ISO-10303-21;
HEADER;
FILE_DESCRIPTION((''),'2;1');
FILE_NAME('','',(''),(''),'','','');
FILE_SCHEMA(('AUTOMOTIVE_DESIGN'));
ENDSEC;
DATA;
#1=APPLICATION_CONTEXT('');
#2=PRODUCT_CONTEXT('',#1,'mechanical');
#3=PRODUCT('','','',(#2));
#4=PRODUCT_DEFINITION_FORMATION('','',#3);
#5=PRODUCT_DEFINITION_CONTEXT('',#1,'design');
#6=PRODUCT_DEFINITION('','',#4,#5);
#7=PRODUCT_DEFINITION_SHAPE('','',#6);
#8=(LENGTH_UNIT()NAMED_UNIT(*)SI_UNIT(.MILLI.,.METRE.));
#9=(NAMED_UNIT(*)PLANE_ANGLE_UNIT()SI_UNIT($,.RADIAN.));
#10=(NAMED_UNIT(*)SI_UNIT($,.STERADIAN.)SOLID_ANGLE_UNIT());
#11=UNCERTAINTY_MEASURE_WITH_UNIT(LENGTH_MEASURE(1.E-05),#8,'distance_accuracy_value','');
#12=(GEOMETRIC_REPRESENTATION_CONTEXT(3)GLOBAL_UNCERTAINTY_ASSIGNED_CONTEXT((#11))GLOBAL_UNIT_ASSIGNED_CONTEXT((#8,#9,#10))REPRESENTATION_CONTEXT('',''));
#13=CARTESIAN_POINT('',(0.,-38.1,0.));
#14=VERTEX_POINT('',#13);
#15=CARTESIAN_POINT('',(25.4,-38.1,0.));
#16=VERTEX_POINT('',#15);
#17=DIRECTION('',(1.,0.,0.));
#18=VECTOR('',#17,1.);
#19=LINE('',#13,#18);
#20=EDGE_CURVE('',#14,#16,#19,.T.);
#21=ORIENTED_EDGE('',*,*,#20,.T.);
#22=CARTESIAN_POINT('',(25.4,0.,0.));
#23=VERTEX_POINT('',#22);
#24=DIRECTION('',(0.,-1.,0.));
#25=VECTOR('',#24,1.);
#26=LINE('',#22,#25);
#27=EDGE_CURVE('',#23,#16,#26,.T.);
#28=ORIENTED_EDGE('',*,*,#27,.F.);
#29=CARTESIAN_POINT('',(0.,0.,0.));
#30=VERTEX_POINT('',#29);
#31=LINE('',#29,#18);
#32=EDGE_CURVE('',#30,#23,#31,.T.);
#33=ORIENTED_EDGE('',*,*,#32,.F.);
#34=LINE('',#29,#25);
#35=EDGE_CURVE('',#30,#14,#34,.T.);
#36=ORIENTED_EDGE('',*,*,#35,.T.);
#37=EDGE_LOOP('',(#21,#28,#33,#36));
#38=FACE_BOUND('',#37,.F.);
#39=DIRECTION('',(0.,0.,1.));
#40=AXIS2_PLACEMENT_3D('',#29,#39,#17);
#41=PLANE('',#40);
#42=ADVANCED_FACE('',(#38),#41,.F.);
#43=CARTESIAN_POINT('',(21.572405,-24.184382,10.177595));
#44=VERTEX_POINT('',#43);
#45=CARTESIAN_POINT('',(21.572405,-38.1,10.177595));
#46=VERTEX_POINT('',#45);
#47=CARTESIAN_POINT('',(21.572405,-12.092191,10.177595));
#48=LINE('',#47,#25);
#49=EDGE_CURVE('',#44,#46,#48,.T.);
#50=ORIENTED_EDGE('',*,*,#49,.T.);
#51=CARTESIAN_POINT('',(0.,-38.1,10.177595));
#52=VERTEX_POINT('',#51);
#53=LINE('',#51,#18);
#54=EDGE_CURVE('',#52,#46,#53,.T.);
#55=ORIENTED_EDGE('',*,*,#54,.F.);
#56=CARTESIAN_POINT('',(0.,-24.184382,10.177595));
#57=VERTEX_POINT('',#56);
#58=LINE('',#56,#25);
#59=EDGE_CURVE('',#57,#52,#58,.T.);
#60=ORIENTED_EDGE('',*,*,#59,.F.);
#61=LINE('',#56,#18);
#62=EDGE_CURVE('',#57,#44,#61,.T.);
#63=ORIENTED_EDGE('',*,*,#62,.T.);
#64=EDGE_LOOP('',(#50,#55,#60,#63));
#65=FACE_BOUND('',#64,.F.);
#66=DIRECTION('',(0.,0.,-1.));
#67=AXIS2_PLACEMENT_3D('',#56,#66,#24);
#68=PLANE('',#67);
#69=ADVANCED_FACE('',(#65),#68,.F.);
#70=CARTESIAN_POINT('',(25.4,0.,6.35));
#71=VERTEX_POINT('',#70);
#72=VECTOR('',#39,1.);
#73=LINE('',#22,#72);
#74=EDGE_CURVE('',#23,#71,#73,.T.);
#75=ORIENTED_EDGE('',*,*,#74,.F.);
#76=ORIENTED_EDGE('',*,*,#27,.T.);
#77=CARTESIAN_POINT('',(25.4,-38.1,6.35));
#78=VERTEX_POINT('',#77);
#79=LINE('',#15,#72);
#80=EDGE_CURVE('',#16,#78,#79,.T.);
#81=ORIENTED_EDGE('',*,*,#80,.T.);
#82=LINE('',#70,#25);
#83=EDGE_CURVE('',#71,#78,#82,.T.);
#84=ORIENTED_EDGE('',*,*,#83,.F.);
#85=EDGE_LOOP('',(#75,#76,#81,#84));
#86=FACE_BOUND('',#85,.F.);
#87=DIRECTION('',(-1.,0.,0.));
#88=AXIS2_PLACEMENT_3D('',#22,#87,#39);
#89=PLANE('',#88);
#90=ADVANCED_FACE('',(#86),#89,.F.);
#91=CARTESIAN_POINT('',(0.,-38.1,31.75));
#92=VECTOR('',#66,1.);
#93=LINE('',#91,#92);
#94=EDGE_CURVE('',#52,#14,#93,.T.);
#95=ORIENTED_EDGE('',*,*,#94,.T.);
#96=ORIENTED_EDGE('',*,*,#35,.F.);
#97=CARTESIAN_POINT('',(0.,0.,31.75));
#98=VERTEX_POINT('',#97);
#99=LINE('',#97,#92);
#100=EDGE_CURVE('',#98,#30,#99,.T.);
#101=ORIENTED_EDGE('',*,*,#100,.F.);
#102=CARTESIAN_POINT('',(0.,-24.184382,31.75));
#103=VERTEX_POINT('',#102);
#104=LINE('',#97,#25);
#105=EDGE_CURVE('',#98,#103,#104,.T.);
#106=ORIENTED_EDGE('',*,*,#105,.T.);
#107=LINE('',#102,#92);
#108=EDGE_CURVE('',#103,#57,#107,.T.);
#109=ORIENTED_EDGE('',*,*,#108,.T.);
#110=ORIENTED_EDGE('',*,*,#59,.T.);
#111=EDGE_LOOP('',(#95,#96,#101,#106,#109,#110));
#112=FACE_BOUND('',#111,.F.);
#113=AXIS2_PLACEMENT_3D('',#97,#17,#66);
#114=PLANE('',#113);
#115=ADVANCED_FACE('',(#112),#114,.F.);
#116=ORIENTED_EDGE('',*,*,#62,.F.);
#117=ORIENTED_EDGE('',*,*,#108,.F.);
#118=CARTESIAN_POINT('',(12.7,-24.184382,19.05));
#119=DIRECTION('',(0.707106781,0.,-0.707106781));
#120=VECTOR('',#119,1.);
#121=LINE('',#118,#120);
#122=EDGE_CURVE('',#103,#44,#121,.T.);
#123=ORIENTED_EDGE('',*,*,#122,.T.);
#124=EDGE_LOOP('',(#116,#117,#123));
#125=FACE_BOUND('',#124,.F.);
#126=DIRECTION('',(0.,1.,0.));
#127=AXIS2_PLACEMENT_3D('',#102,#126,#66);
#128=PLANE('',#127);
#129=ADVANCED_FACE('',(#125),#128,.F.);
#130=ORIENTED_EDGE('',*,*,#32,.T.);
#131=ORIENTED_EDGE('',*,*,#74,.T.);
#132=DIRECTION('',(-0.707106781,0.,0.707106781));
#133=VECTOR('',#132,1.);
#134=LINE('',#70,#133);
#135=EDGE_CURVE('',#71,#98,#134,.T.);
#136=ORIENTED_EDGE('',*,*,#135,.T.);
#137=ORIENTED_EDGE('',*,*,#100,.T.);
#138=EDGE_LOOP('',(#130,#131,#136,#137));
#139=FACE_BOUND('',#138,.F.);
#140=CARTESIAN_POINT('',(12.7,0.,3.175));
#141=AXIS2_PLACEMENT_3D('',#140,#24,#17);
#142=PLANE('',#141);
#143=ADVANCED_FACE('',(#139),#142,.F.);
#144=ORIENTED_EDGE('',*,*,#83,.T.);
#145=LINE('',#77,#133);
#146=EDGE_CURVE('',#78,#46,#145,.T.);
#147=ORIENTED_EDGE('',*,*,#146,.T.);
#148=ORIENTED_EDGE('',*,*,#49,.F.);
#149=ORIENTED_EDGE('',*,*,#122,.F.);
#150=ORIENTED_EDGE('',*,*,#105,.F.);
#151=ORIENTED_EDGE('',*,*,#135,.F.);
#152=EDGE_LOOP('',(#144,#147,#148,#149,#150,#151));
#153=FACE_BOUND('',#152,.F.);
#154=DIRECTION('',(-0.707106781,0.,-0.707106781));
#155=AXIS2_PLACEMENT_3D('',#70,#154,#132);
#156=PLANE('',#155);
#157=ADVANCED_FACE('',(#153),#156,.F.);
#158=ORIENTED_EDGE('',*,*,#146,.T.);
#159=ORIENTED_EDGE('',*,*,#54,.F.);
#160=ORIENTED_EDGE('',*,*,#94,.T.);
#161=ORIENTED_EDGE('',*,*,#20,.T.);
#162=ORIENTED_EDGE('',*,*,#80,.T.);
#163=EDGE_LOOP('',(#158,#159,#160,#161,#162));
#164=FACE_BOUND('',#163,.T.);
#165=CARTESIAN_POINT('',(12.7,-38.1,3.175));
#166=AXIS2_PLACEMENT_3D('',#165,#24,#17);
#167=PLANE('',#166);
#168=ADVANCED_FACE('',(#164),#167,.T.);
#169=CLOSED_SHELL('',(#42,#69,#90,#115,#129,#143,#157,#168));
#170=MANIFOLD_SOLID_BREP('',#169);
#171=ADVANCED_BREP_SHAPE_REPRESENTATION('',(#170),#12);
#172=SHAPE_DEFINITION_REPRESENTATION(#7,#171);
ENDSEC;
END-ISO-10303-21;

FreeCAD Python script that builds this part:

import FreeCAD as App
import Part
import Sketcher
from FreeCAD import Vector
Q = App.Units.Quantity


def add_polygon(sketch, points):
    """Adds a closed chain of lines whose ends are joined by coincident constraints."""
    first, n = sketch.GeometryCount, len(points)
    for a, b in zip(points, points[1:] + points[:1]):
        sketch.addGeometry(Part.LineSegment(App.Vector(*a, 0), App.Vector(*b, 0)), False)
    for i in range(n):
        sketch.addConstraint(Sketcher.Constraint("Coincident", first + i, 2, first + (i + 1) % n, 1))

doc = App.newDocument("Part")
body = doc.addObject("PartDesign::Body", "Body")

# Sketch on XZ plane
sketch1 = doc.addObject("Sketcher::SketchObject", "Sketch")
body.addObject(sketch1)
sketch1.AttachmentSupport = (doc.XZ_Plane, [""])
sketch1.MapMode = "FlatFace"
add_polygon(sketch1, [(0, 0), (25, 0), (25, 6), (0, 32)])  # lines 0-3
sketch1.addConstraint([
    Sketcher.Constraint("Horizontal", 0),
    Sketcher.Constraint("Vertical", 1),
    Sketcher.Constraint("Vertical", 3),
    Sketcher.Constraint("Coincident", 3, 2, -1, 1),
    Sketcher.Constraint("DistanceX", 0, 1, 0, 2, Q("1 in")),
    Sketcher.Constraint("Angle", 2, Q("135 deg")),
    Sketcher.Constraint("DistanceY", 1, 1, 1, 2, Q("0.25 in")),
])
pad1 = doc.addObject("PartDesign::Pad", "Pad")
body.addObject(pad1)
pad1.Profile = sketch1
pad1.Length = Q("1.5 in")

# Sketch on YZ plane
sketch2 = doc.addObject("Sketcher::SketchObject", "Sketch001")
body.addObject(sketch2)
sketch2.AttachmentSupport = (doc.YZ_Plane, [""])
sketch2.MapMode = "FlatFace"
add_polygon(sketch2, [(-38, 32), (-24, 32), (-24, 10), (-38, 10)])  # lines 0-3
sketch2.addConstraint([
    Sketcher.Constraint("Horizontal", 0),
    Sketcher.Constraint("Vertical", 1),
    Sketcher.Constraint("Horizontal", 2),
    Sketcher.Constraint("Vertical", 3),
    Sketcher.Constraint("DistanceX", 2, 2, -1, 1, Q("1.5 in")),
    Sketcher.Constraint("DistanceY", -1, 1, 0, 2, Q("1.25 in")),
    Sketcher.Constraint("DistanceX", 0, 1, 0, 2, 13.915618),
    Sketcher.Constraint("DistanceY", 1, 2, 1, 1, 21.572405),
])
pocket1 = doc.addObject("PartDesign::Pocket", "Pocket")
body.addObject(pocket1)
pocket1.Profile = sketch2
pocket1.Length = Q("1 in")
pocket1.Reversed = True

doc.recompute()
